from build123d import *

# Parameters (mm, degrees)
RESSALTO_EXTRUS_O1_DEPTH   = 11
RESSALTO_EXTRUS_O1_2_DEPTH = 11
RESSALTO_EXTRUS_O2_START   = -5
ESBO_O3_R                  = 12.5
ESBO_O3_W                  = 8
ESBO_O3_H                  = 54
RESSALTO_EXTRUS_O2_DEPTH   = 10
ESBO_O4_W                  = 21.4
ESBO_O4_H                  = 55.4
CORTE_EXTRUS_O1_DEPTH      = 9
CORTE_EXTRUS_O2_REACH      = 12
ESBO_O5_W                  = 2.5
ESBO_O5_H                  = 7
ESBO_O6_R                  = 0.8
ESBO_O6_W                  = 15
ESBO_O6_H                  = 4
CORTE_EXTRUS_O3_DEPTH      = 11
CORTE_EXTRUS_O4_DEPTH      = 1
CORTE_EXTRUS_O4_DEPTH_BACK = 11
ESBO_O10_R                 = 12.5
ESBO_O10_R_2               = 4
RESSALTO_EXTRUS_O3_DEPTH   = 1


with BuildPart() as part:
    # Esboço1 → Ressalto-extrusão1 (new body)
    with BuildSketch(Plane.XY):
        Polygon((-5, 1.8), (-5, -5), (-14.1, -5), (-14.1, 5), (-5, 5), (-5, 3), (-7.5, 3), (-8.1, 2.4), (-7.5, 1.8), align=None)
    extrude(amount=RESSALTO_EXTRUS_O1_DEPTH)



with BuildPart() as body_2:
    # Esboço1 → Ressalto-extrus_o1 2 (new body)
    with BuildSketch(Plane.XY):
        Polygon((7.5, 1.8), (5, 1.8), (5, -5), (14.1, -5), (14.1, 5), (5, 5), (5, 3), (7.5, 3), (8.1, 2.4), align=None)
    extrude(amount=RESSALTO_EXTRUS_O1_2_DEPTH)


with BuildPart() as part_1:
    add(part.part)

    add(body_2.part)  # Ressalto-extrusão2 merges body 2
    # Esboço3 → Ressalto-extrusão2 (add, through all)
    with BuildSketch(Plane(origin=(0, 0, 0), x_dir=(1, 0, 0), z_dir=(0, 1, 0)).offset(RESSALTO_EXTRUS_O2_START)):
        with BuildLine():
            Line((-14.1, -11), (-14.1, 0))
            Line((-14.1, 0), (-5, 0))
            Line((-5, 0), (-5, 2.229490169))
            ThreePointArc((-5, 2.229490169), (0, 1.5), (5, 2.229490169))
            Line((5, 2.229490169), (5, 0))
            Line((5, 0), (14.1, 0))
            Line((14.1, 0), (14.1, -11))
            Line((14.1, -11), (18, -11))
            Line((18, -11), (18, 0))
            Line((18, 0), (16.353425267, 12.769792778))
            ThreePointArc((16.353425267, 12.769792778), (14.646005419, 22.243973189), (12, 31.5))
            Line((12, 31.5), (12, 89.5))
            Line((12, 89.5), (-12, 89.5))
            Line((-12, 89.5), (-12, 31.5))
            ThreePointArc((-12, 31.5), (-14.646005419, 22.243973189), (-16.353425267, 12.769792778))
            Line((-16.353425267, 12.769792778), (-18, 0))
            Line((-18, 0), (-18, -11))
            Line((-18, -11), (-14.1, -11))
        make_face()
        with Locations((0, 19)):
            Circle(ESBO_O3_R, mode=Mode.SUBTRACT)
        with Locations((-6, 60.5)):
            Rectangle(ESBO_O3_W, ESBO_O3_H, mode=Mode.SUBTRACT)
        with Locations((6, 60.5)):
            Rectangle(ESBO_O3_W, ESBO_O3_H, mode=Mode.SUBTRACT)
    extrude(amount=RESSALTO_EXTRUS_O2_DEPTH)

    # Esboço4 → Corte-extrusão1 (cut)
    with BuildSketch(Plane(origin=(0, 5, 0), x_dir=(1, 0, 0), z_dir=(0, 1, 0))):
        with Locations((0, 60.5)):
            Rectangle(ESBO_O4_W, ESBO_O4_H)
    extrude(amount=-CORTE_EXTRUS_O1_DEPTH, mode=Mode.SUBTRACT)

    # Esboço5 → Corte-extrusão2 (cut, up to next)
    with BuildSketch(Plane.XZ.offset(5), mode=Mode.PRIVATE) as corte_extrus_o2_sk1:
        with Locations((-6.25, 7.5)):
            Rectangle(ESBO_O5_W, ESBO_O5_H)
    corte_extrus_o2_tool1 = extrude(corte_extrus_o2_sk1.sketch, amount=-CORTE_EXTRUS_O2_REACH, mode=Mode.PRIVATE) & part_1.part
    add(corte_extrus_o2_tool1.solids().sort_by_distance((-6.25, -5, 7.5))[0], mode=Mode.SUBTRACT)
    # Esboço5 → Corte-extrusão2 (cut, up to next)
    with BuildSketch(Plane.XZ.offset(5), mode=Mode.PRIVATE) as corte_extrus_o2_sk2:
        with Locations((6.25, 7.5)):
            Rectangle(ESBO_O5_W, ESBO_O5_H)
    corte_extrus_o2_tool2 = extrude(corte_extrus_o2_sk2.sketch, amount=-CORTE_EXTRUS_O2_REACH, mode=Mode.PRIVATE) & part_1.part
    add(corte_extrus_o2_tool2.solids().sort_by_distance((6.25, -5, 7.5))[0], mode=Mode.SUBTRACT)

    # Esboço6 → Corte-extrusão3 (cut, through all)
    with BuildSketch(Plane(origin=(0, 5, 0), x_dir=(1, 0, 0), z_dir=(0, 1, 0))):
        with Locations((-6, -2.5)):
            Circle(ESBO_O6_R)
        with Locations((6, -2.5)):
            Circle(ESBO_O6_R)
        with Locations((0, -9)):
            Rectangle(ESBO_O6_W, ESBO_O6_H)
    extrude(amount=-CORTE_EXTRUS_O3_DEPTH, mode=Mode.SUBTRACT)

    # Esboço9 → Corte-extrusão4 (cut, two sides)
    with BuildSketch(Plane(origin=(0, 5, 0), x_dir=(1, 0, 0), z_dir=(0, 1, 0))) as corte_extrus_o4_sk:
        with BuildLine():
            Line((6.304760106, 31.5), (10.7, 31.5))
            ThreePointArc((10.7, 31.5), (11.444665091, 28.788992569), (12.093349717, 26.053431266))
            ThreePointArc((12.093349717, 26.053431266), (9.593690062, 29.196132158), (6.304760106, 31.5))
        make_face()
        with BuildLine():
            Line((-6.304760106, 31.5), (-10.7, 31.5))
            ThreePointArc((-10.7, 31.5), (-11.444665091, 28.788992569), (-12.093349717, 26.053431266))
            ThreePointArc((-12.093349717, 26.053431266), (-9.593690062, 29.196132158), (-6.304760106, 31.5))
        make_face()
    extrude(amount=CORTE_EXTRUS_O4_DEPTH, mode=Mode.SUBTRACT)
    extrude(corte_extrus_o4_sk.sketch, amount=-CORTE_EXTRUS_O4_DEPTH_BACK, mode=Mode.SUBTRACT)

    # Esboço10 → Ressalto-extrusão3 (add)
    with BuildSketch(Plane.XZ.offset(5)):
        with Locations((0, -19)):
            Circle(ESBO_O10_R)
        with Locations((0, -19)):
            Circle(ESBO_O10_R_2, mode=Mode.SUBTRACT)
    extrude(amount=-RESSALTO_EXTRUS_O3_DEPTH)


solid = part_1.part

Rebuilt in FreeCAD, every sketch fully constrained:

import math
import FreeCAD as App
import Part
import Sketcher
from FreeCAD import Vector
Q = App.Units.Quantity

doc = App.newDocument("Part")
body = doc.addObject("PartDesign::Body", "Body")

# Sketch on XY plane
sketch1 = body.newObject("Sketcher::SketchObject", "Sketch")
sketch1.AttachmentSupport = (doc.getObject("XY_Plane"), [""])
sketch1.MapMode = "FlatFace"
sketch1.addGeometry([
    Part.LineSegment(Vector(-5, -5, 0), Vector(-5, 1.8, 0)),  # 0
    Part.LineSegment(Vector(-5, 1.8, 0), Vector(-7.5, 1.8, 0)),  # 1
    Part.LineSegment(Vector(-7.5, 1.8, 0), Vector(-8.1, 2.4, 0)),  # 2
    Part.LineSegment(Vector(-8.1, 2.4, 0), Vector(-7.5, 3, 0)),  # 3
    Part.LineSegment(Vector(-7.5, 3, 0), Vector(-5, 3, 0)),  # 4
    Part.LineSegment(Vector(-5, 3, 0), Vector(-5, 5, 0)),  # 5
    Part.LineSegment(Vector(-5, 5, 0), Vector(-14.1, 5, 0)),  # 6
    Part.LineSegment(Vector(-14.1, 5, 0), Vector(-14.1, -5, 0)),  # 7
    Part.LineSegment(Vector(-14.1, -5, 0), Vector(-5, -5, 0)),  # 8
], False)
sketch1.addConstraint([
    Sketcher.Constraint("Coincident", 0, 2, 1, 1),
    Sketcher.Constraint("Coincident", 1, 2, 2, 1),
    Sketcher.Constraint("Coincident", 2, 2, 3, 1),
    Sketcher.Constraint("Coincident", 3, 2, 4, 1),
    Sketcher.Constraint("Coincident", 4, 2, 5, 1),
    Sketcher.Constraint("Coincident", 5, 2, 6, 1),
    Sketcher.Constraint("Coincident", 6, 2, 7, 1),
    Sketcher.Constraint("Coincident", 7, 2, 8, 1),
    Sketcher.Constraint("Coincident", 8, 2, 0, 1),
    Sketcher.Constraint("Vertical", 0),
    Sketcher.Constraint("Horizontal", 1),
    Sketcher.Constraint("Horizontal", 4),
    Sketcher.Constraint("Vertical", 5),
    Sketcher.Constraint("Horizontal", 6),
    Sketcher.Constraint("Vertical", 7),
    Sketcher.Constraint("Horizontal", 8),
    Sketcher.Constraint("Symmetric", 5, 2, 8, 2, -1),
    Sketcher.Constraint("Perpendicular", 2, 3),
    Sketcher.Constraint("Vertical", 1, 2, 3, 2),
    Sketcher.Constraint("Equal", 2, 3),
    Sketcher.Constraint("DistanceY", 5, 1, 5, 2, Q("2 mm")),
    Sketcher.Constraint("DistanceY", 7, 2, 7, 1, Q("10 mm")),
    Sketcher.Constraint("DistanceX", 1, 2, 1, 1, Q("2.5 mm")),
    Sketcher.Constraint("DistanceX", 6, 2, 6, 1, Q("9.1 mm")),
    Sketcher.Constraint("DistanceY", 0, 1, 0, 2, Q("6.8 mm")),
    Sketcher.Constraint("DistanceX", 0, 2, -1, 1, Q("5 mm")),
])
pad1 = body.newObject("PartDesign::Pad", "Pad")
pad1.Profile = sketch1
pad1.Length = 11
body2 = doc.addObject("PartDesign::Body", "Body001")

# Sketch on XY plane
sketch2 = body2.newObject("Sketcher::SketchObject", "Sketch001")
sketch2.AttachmentSupport = (doc.getObject("XY_Plane001"), [""])
sketch2.MapMode = "FlatFace"
sketch2.addGeometry([
    Part.LineSegment(Vector(7.5, 1.8, 0), Vector(5, 1.8, 0)),  # 0
    Part.LineSegment(Vector(5, 1.8, 0), Vector(5, -5, 0)),  # 1
    Part.LineSegment(Vector(5, -5, 0), Vector(14.1, -5, 0)),  # 2
    Part.LineSegment(Vector(14.1, -5, 0), Vector(14.1, 5, 0)),  # 3
    Part.LineSegment(Vector(14.1, 5, 0), Vector(5, 5, 0)),  # 4
    Part.LineSegment(Vector(5, 5, 0), Vector(5, 3, 0)),  # 5
    Part.LineSegment(Vector(5, 3, 0), Vector(7.5, 3, 0)),  # 6
    Part.LineSegment(Vector(7.5, 3, 0), Vector(8.1, 2.4, 0)),  # 7
    Part.LineSegment(Vector(8.1, 2.4, 0), Vector(7.5, 1.8, 0)),  # 8
], False)
sketch2.addConstraint([
    Sketcher.Constraint("Coincident", 0, 2, 1, 1),
    Sketcher.Constraint("Coincident", 1, 2, 2, 1),
    Sketcher.Constraint("Coincident", 2, 2, 3, 1),
    Sketcher.Constraint("Coincident", 3, 2, 4, 1),
    Sketcher.Constraint("Coincident", 4, 2, 5, 1),
    Sketcher.Constraint("Coincident", 5, 2, 6, 1),
    Sketcher.Constraint("Coincident", 6, 2, 7, 1),
    Sketcher.Constraint("Coincident", 7, 2, 8, 1),
    Sketcher.Constraint("Coincident", 8, 2, 0, 1),
    Sketcher.Constraint("Horizontal", 0),
    Sketcher.Constraint("Vertical", 1),
    Sketcher.Constraint("Horizontal", 2),
    Sketcher.Constraint("Vertical", 3),
    Sketcher.Constraint("Horizontal", 4),
    Sketcher.Constraint("Vertical", 5),
    Sketcher.Constraint("Horizontal", 6),
    Sketcher.Constraint("Symmetric", 1, 2, 4, 2, -1),
    Sketcher.Constraint("Perpendicular", 7, 8),
    Sketcher.Constraint("Vertical", 6, 2, 8, 2),
    Sketcher.Constraint("Equal", 7, 8),
    Sketcher.Constraint("DistanceY", 3, 1, 3, 2, Q("10 mm")),
    Sketcher.Constraint("DistanceY", 5, 2, 5, 1, Q("2 mm")),
    Sketcher.Constraint("DistanceX", 0, 2, 0, 1, Q("2.5 mm")),
    Sketcher.Constraint("DistanceX", 2, 1, 2, 2, Q("9.1 mm")),
    Sketcher.Constraint("DistanceY", 1, 2, 1, 1, Q("6.8 mm")),
    Sketcher.Constraint("DistanceX", -1, 1, 0, 2, Q("5 mm")),
])
pad2 = body2.newObject("PartDesign::Pad", "Pad001")
pad2.Profile = sketch2
pad2.Length = 11
body.AllowCompound = True
doc.recompute()

boolean = body.newObject("PartDesign::Boolean", "Boolean")
boolean.Type = "Fuse"
boolean.addObjects([body2])

# Sketch on XZ plane
sketch3 = body.newObject("Sketcher::SketchObject", "Sketch002")
sketch3.AttachmentSupport = (doc.getObject("XZ_Plane"), [""])
sketch3.MapMode = "FlatFace"
sketch3.AttachmentOffset = App.Placement(Vector(0, 0, 5), App.Rotation())
sketch3.addGeometry([
    Part.LineSegment(Vector(-14.1, 11, 0), Vector(-14.1, 0, 0)),  # 0
    Part.LineSegment(Vector(-14.1, 0, 0), Vector(-5, 0, 0)),  # 1
    Part.LineSegment(Vector(-5, 0, 0), Vector(-5, -2.22949, 0)),  # 2
    Part.ArcOfCircle(Part.Circle(Vector(0, -19, 0), Vector(0, 0, 1), 17.5), math.radians(73.39845), math.radians(106.60155)),  # 3
    Part.LineSegment(Vector(5, -2.22949, 0), Vector(5, 0, 0)),  # 4
    Part.LineSegment(Vector(5, 0, 0), Vector(14.1, 0, 0)),  # 5
    Part.LineSegment(Vector(14.1, 0, 0), Vector(14.1, 11, 0)),  # 6
    Part.LineSegment(Vector(14.1, 11, 0), Vector(18, 11, 0)),  # 7
    Part.LineSegment(Vector(18, 11, 0), Vector(18, 0, 0)),  # 8
    Part.LineSegment(Vector(18, 0, 0), Vector(16.353425, -12.769793, 0)),  # 9
    Part.ArcOfCircle(Part.Circle(Vector(-79.032615, -0.470436, 0), Vector(0, 0, 1), 96.175729), math.radians(-18.822296), math.radians(-7.347346)),  # 10
    Part.LineSegment(Vector(12, -31.5, 0), Vector(12, -89.5, 0)),  # 11
    Part.LineSegment(Vector(12, -89.5, 0), Vector(-12, -89.5, 0)),  # 12
    Part.LineSegment(Vector(-12, -89.5, 0), Vector(-12, -31.5, 0)),  # 13
    Part.ArcOfCircle(Part.Circle(Vector(79.032615, -0.470436, 0), Vector(0, 0, 1), 96.175729), math.radians(-172.652654), math.radians(-161.177704)),  # 14
    Part.LineSegment(Vector(-16.353425, -12.769793, 0), Vector(-18, 0, 0)),  # 15
    Part.LineSegment(Vector(-18, 0, 0), Vector(-18, 11, 0)),  # 16
    Part.LineSegment(Vector(-18, 11, 0), Vector(-14.1, 11, 0)),  # 17
    Part.Circle(Vector(0, -19, 0), Vector(0, 0, 1), 12.5),  # 18
    Part.LineSegment(Vector(-2, -33.5, 0), Vector(-10, -33.5, 0)),  # 19
    Part.LineSegment(Vector(-10, -33.5, 0), Vector(-10, -87.5, 0)),  # 20
    Part.LineSegment(Vector(-10, -87.5, 0), Vector(-2, -87.5, 0)),  # 21
    Part.LineSegment(Vector(-2, -87.5, 0), Vector(-2, -33.5, 0)),  # 22
    Part.LineSegment(Vector(10, -33.5, 0), Vector(2, -33.5, 0)),  # 23
    Part.LineSegment(Vector(2, -33.5, 0), Vector(2, -87.5, 0)),  # 24
    Part.LineSegment(Vector(2, -87.5, 0), Vector(10, -87.5, 0)),  # 25
    Part.LineSegment(Vector(10, -87.5, 0), Vector(10, -33.5, 0)),  # 26
], False)
sketch3.addConstraint([
    Sketcher.Constraint("Coincident", 0, 2, 1, 1),
    Sketcher.Constraint("Coincident", 1, 2, 2, 1),
    Sketcher.Constraint("Coincident", 2, 2, 3, 2),
    Sketcher.Constraint("Coincident", 3, 1, 4, 1),
    Sketcher.Constraint("Coincident", 4, 2, 5, 1),
    Sketcher.Constraint("Coincident", 5, 2, 6, 1),
    Sketcher.Constraint("Coincident", 6, 2, 7, 1),
    Sketcher.Constraint("Coincident", 7, 2, 8, 1),
    Sketcher.Constraint("Coincident", 8, 2, 9, 1),
    Sketcher.Constraint("Tangent", 9, 2, 10, 2),
    Sketcher.Constraint("Coincident", 10, 1, 11, 1),
    Sketcher.Constraint("Coincident", 11, 2, 12, 1),
    Sketcher.Constraint("Coincident", 12, 2, 13, 1),
    Sketcher.Constraint("Coincident", 13, 2, 14, 2),
    Sketcher.Constraint("Tangent", 14, 1, 15, 1),
    Sketcher.Constraint("Coincident", 15, 2, 16, 1),
    Sketcher.Constraint("Coincident", 16, 2, 17, 1),
    Sketcher.Constraint("Coincident", 17, 2, 0, 1),
    Sketcher.Constraint("Coincident", 19, 2, 20, 1),
    Sketcher.Constraint("Coincident", 20, 2, 21, 1),
    Sketcher.Constraint("Coincident", 21, 2, 22, 1),
    Sketcher.Constraint("Coincident", 22, 2, 19, 1),
    Sketcher.Constraint("Coincident", 23, 2, 24, 1),
    Sketcher.Constraint("Coincident", 24, 2, 25, 1),
    Sketcher.Constraint("Coincident", 25, 2, 26, 1),
    Sketcher.Constraint("Coincident", 26, 2, 23, 1),
    Sketcher.Constraint("Vertical", 0),
    Sketcher.Constraint("Horizontal", 1),
    Sketcher.Constraint("Vertical", 2),
    Sketcher.Constraint("Vertical", 4),
    Sketcher.Constraint("Horizontal", 5),
    Sketcher.Constraint("Vertical", 6),
    Sketcher.Constraint("Horizontal", 7),
    Sketcher.Constraint("Vertical", 8),
    Sketcher.Constraint("Vertical", 11),
    Sketcher.Constraint("Horizontal", 12),
    Sketcher.Constraint("Vertical", 13),
    Sketcher.Constraint("Vertical", 16),
    Sketcher.Constraint("Horizontal", 17),
    Sketcher.Constraint("Horizontal", 19),
    Sketcher.Constraint("Vertical", 20),
    Sketcher.Constraint("Horizontal", 21),
    Sketcher.Constraint("Vertical", 22),
    Sketcher.Constraint("Horizontal", 23),
    Sketcher.Constraint("Vertical", 24),
    Sketcher.Constraint("Horizontal", 25),
    Sketcher.Constraint("Vertical", 26),
    Sketcher.Constraint("Coincident", 18, 3, 3, 3),
    Sketcher.Constraint("Equal", 10, 14),
    Sketcher.Constraint("Symmetric", 1, 2, 4, 2, -1, 1),
    Sketcher.Constraint("Symmetric", 8, 2, 15, 2, -1, 1),
    Sketcher.Constraint("Symmetric", 10, 3, 14, 3, -2),
    Sketcher.Constraint("Symmetric", 0, 2, 5, 2, -2),
    Sketcher.Constraint("Symmetric", 22, 2, 23, 2, -2),
    Sketcher.Constraint("Symmetric", 20, 2, 25, 2, -2),
    Sketcher.Constraint("PointOnObject", 3, 3, -2),
    Sketcher.Constraint("PointOnObject", 8, 2, -1),
    Sketcher.Constraint("Horizontal", 10, 1, 13, 2),
    Sketcher.Constraint("Horizontal", 7, 2, 16, 2),
    Sketcher.Constraint("Diameter", 18, Q("25 mm")),
    Sketcher.Constraint("Radius", 3, Q("17.5 mm")),
    Sketcher.Constraint("DistanceX", 12, 2, 12, 1, Q("24 mm")),
    Sketcher.Constraint("DistanceX", 19, 2, 19, 1, Q("8 mm")),
    Sketcher.Constraint("DistanceY", 0, 2, 0, 1, Q("11 mm")),
    Sketcher.Constraint("DistanceY", 11, 2, 11, 1, Q("58 mm")),
    Sketcher.Constraint("DistanceY", 20, 2, 20, 1, Q("54 mm")),
    Sketcher.Constraint("DistanceX", 1, 1, 1, 2, Q("9.1 mm")),
    Sketcher.Constraint("DistanceX", 7, 1, 7, 2, Q("3.9 mm")),
    Sketcher.Constraint("DistanceY", 3, 3, -1, 1, Q("19 mm")),
    Sketcher.Constraint("DistanceX", 1, 2, -1, 1, Q("5 mm")),
    Sketcher.Constraint("DistanceX", 19, 2, -1, 1, Q("10 mm")),
    Sketcher.Constraint("DistanceY", 19, 2, 13, 2, Q("2 mm")),
    Sketcher.Constraint("DistanceY", 10, 1, -1, 1, Q("31.5 mm")),
    Sketcher.Constraint("Radius", 10, Q("96.175729 mm")),
    Sketcher.Constraint("DistanceX", 10, 3, 14, 3, Q("158.06523 mm")),
])
pad3 = body.newObject("PartDesign::Pad", "Pad002")
pad3.Profile = sketch3
pad3.Length = 10
pad3.Reversed = True

# Sketch on XZ plane
sketch4 = body.newObject("Sketcher::SketchObject", "Sketch003")
sketch4.AttachmentSupport = (doc.getObject("XZ_Plane"), [""])
sketch4.MapMode = "FlatFace"
sketch4.AttachmentOffset = App.Placement(Vector(0, 0, -5), App.Rotation())
sketch4.addGeometry([
    Part.LineSegment(Vector(-10.7, -88.2, 0), Vector(-10.7, -32.8, 0)),
    Part.LineSegment(Vector(-10.7, -32.8, 0), Vector(10.7, -32.8, 0)),
    Part.LineSegment(Vector(10.7, -32.8, 0), Vector(10.7, -88.2, 0)),
    Part.LineSegment(Vector(10.7, -88.2, 0), Vector(-10.7, -88.2, 0)),
], False)
sketch4.addConstraint([
    Sketcher.Constraint("Coincident", 0, 2, 1, 1),
    Sketcher.Constraint("Coincident", 1, 2, 2, 1),
    Sketcher.Constraint("Coincident", 2, 2, 3, 1),
    Sketcher.Constraint("Coincident", 3, 2, 0, 1),
    Sketcher.Constraint("Vertical", 0),
    Sketcher.Constraint("Horizontal", 1),
    Sketcher.Constraint("Vertical", 2),
    Sketcher.Constraint("Horizontal", 3),
    Sketcher.Constraint("DistanceX", 1, 1, 1, 2, Q("21.4 mm")),
    Sketcher.Constraint("DistanceY", 0, 1, 0, 2, Q("55.4 mm")),
    Sketcher.Constraint("DistanceX", 0, 2, -1, 1, Q("10.7 mm")),
    Sketcher.Constraint("DistanceY", 0, 2, -1, 1, Q("32.8 mm")),
])
pocket1 = body.newObject("PartDesign::Pocket", "Pocket")
pocket1.Profile = sketch4
pocket1.Length = 9
pocket1.Reversed = True

# Sketch on XZ plane
sketch5 = body.newObject("Sketcher::SketchObject", "Sketch004")
sketch5.AttachmentSupport = (doc.getObject("XZ_Plane"), [""])
sketch5.MapMode = "FlatFace"
sketch5.AttachmentOffset = App.Placement(Vector(0, 0, 5), App.Rotation())
sketch5.addGeometry([
    Part.LineSegment(Vector(-7.5, 11, 0), Vector(-7.5, 4, 0)),
    Part.LineSegment(Vector(-7.5, 4, 0), Vector(-5, 4, 0)),
    Part.LineSegment(Vector(-5, 4, 0), Vector(-5, 11, 0)),
    Part.LineSegment(Vector(-5, 11, 0), Vector(-7.5, 11, 0)),
], False)
sketch5.addConstraint([
    Sketcher.Constraint("Coincident", 0, 2, 1, 1),
    Sketcher.Constraint("Coincident", 1, 2, 2, 1),
    Sketcher.Constraint("Coincident", 2, 2, 3, 1),
    Sketcher.Constraint("Coincident", 3, 2, 0, 1),
    Sketcher.Constraint("Vertical", 0),
    Sketcher.Constraint("Horizontal", 1),
    Sketcher.Constraint("Vertical", 2),
    Sketcher.Constraint("Horizontal", 3),
    Sketcher.Constraint("DistanceY", 0, 2, 0, 1, Q("7 mm")),
    Sketcher.Constraint("DistanceX", 1, 1, 1, 2, Q("2.5 mm")),
    Sketcher.Constraint("DistanceY", -1, 1, 0, 2, Q("4 mm")),
    Sketcher.Constraint("DistanceX", 1, 2, -1, 1, Q("5 mm")),
])
pocket2 = body.newObject("PartDesign::Pocket", "Pocket001")
pocket2.Profile = sketch5
pocket2.Type = "UpToFirst"

# Sketch on XZ plane
sketch6 = body.newObject("Sketcher::SketchObject", "Sketch005")
sketch6.AttachmentSupport = (doc.getObject("XZ_Plane"), [""])
sketch6.MapMode = "FlatFace"
sketch6.AttachmentOffset = App.Placement(Vector(0, 0, 5), App.Rotation())
sketch6.addGeometry([
    Part.LineSegment(Vector(5, 11, 0), Vector(5, 4, 0)),
    Part.LineSegment(Vector(5, 4, 0), Vector(7.5, 4, 0)),
    Part.LineSegment(Vector(7.5, 4, 0), Vector(7.5, 11, 0)),
    Part.LineSegment(Vector(7.5, 11, 0), Vector(5, 11, 0)),
], False)
sketch6.addConstraint([
    Sketcher.Constraint("Coincident", 0, 2, 1, 1),
    Sketcher.Constraint("Coincident", 1, 2, 2, 1),
    Sketcher.Constraint("Coincident", 2, 2, 3, 1),
    Sketcher.Constraint("Coincident", 3, 2, 0, 1),
    Sketcher.Constraint("Vertical", 0),
    Sketcher.Constraint("Horizontal", 1),
    Sketcher.Constraint("Vertical", 2),
    Sketcher.Constraint("Horizontal", 3),
    Sketcher.Constraint("DistanceY", 0, 2, 0, 1, Q("7 mm")),
    Sketcher.Constraint("DistanceX", 1, 1, 1, 2, Q("2.5 mm")),
    Sketcher.Constraint("DistanceX", -1, 1, 0, 2, Q("5 mm")),
    Sketcher.Constraint("DistanceY", -1, 1, 0, 2, Q("4 mm")),
])
pocket3 = body.newObject("PartDesign::Pocket", "Pocket002")
pocket3.Profile = sketch6
pocket3.Type = "UpToFirst"

# Sketch on XZ plane
sketch7 = body.newObject("Sketcher::SketchObject", "Sketch006")
sketch7.AttachmentSupport = (doc.getObject("XZ_Plane"), [""])
sketch7.MapMode = "FlatFace"
sketch7.AttachmentOffset = App.Placement(Vector(0, 0, -5), App.Rotation())
sketch7.addGeometry([
    Part.Circle(Vector(-6, 2.5, 0), Vector(0, 0, 1), 0.8),  # 0
    Part.Circle(Vector(6, 2.5, 0), Vector(0, 0, 1), 0.8),  # 1
    Part.LineSegment(Vector(-7.5, 7, 0), Vector(-7.5, 11, 0)),  # 2
    Part.LineSegment(Vector(-7.5, 11, 0), Vector(7.5, 11, 0)),  # 3
    Part.LineSegment(Vector(7.5, 11, 0), Vector(7.5, 7, 0)),  # 4
    Part.LineSegment(Vector(7.5, 7, 0), Vector(-7.5, 7, 0)),  # 5
], False)
sketch7.addConstraint([
    Sketcher.Constraint("Coincident", 2, 2, 3, 1),
    Sketcher.Constraint("Coincident", 3, 2, 4, 1),
    Sketcher.Constraint("Coincident", 4, 2, 5, 1),
    Sketcher.Constraint("Coincident", 5, 2, 2, 1),
    Sketcher.Constraint("Vertical", 2),
    Sketcher.Constraint("Horizontal", 3),
    Sketcher.Constraint("Vertical", 4),
    Sketcher.Constraint("Horizontal", 5),
    Sketcher.Constraint("Equal", 0, 1),
    Sketcher.Constraint("Symmetric", 0, 3, 1, 3, -2),
    Sketcher.Constraint("Diameter", 0, Q("1.6 mm")),
    Sketcher.Constraint("DistanceX", 3, 1, 3, 2, Q("15 mm")),
    Sketcher.Constraint("DistanceY", 2, 1, 2, 2, Q("4 mm")),
    Sketcher.Constraint("DistanceX", 0, 3, -1, 1, Q("6 mm")),
    Sketcher.Constraint("DistanceY", -1, 1, 2, 2, Q("11 mm")),
    Sketcher.Constraint("DistanceY", -1, 1, 0, 3, Q("2.5 mm")),
    Sketcher.Constraint("DistanceX", 2, 2, -1, 1, Q("7.5 mm")),
])
pocket4 = body.newObject("PartDesign::Pocket", "Pocket003")
pocket4.Profile = sketch7
pocket4.Type = "ThroughAll"
pocket4.Reversed = True

# Sketch on XZ plane
sketch8 = body.newObject("Sketcher::SketchObject", "Sketch007")
sketch8.AttachmentSupport = (doc.getObject("XZ_Plane"), [""])
sketch8.MapMode = "FlatFace"
sketch8.AttachmentOffset = App.Placement(Vector(0, 0, -5), App.Rotation())
sketch8.addGeometry([
    Part.LineSegment(Vector(10.7, -31.5, 0), Vector(6.30476, -31.5, 0)),  # 0
    Part.ArcOfCircle(Part.Circle(Vector(0, -19, 0), Vector(0, 0, 1), 14), math.radians(-63.234499), math.radians(-30.252822)),  # 1
    Part.ArcOfCircle(Part.Circle(Vector(-65.847947, -9.015876, 0), Vector(0, 0, 1), 79.781727), math.radians(-16.368886), math.radians(-12.330596)),  # 2
    Part.LineSegment(Vector(-6.30476, -31.5, 0), Vector(-10.7, -31.5, 0)),  # 3
    Part.ArcOfCircle(Part.Circle(Vector(65.847947, -9.015876, 0), Vector(0, 0, 1), 79.781727), math.radians(-167.669404), math.radians(-163.631114)),  # 4
    Part.ArcOfCircle(Part.Circle(Vector(0, -19, 0), Vector(0, 0, 1), 14), math.radians(-149.747178), math.radians(-116.765501)),  # 5
], False)
sketch8.addConstraint([
    Sketcher.Constraint("Coincident", 0, 2, 1, 1),
    Sketcher.Constraint("Coincident", 1, 2, 2, 2),
    Sketcher.Constraint("Coincident", 2, 1, 0, 1),
    Sketcher.Constraint("Coincident", 3, 2, 4, 2),
    Sketcher.Constraint("Coincident", 4, 1, 5, 1),
    Sketcher.Constraint("Coincident", 5, 2, 3, 1),
    Sketcher.Constraint("Horizontal", 0),
    Sketcher.Constraint("Horizontal", 3),
    Sketcher.Constraint("Coincident", 5, 3, 1, 3),
    Sketcher.Constraint("Equal", 2, 4),
    Sketcher.Constraint("Equal", 1, 5),
    Sketcher.Constraint("Symmetric", 2, 3, 4, 3, -2),
    Sketcher.Constraint("Symmetric", 0, 2, 5, 2, -2),
    Sketcher.Constraint("Radius", 1, Q("14 mm")),
    Sketcher.Constraint("DistanceY", 1, 3, -1, 1, Q("19 mm")),
    Sketcher.Constraint("DistanceY", 0, 2, -1, 1, Q("31.5 mm")),
    Sketcher.Constraint("DistanceX", -1, 1, 2, 1, Q("10.7 mm")),
    Sketcher.Constraint("Radius", 2, Q("79.781727 mm")),
    Sketcher.Constraint("DistanceX", -1, 1, 1, 2, Q("12.09335 mm")),
])
pocket5 = body.newObject("PartDesign::Pocket", "Pocket004")
pocket5.Profile = sketch8
pocket5.Type = "ThroughAll"
pocket5.Midplane = True

# Sketch on XZ plane
sketch9 = body.newObject("Sketcher::SketchObject", "Sketch008")
sketch9.AttachmentSupport = (doc.getObject("XZ_Plane"), [""])
sketch9.MapMode = "FlatFace"
sketch9.AttachmentOffset = App.Placement(Vector(0, 0, 5), App.Rotation())
sketch9.addGeometry([
    Part.Circle(Vector(0, -19, 0), Vector(0, 0, 1), 12.5),
    Part.Circle(Vector(0, -19, 0), Vector(0, 0, 1), 4),
], False)
sketch9.addConstraint([
    Sketcher.Constraint("Coincident", 1, 3, 0, 3),
    Sketcher.Constraint("PointOnObject", 0, 3, -2),
    Sketcher.Constraint("Diameter", 0, Q("25 mm")),
    Sketcher.Constraint("Diameter", 1, Q("8 mm")),
    Sketcher.Constraint("DistanceY", 0, 3, -1, 1, Q("19 mm")),
])
pad4 = body.newObject("PartDesign::Pad", "Pad003")
pad4.Profile = sketch9
pad4.Length = 1
pad4.Reversed = True

doc.recompute()
